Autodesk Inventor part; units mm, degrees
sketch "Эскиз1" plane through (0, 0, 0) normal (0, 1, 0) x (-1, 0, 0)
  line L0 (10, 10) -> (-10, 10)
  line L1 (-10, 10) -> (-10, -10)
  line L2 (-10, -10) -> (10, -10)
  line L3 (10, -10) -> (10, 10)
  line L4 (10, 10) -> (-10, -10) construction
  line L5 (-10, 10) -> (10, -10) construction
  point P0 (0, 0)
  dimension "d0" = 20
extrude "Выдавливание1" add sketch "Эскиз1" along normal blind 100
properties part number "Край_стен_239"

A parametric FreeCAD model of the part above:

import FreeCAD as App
import Part
import Sketcher
Q = App.Units.Quantity

doc = App.newDocument("Part")
body = doc.addObject("PartDesign::Body", "Body")

sketch1 = body.newObject("Sketcher::SketchObject", "Sketch")
sketch1.AttachmentSupport = (doc.getObject("XZ_Plane"), [""])
sketch1.MapMode = "FlatFace"
sketch1.addGeometry(Part.LineSegment(App.Vector(-10, -10, 0), App.Vector(-10, 10, 0)), False)
sketch1.addGeometry(Part.LineSegment(App.Vector(-10, 10, 0), App.Vector(10, 10, 0)), False)
sketch1.addGeometry(Part.LineSegment(App.Vector(10, 10, 0), App.Vector(10, -10, 0)), False)
sketch1.addGeometry(Part.LineSegment(App.Vector(10, -10, 0), App.Vector(-10, -10, 0)), False)
sketch1.addConstraint(Sketcher.Constraint("Coincident", 0, 2, 1, 1))
sketch1.addConstraint(Sketcher.Constraint("Coincident", 1, 2, 2, 1))
sketch1.addConstraint(Sketcher.Constraint("Coincident", 2, 2, 3, 1))
sketch1.addConstraint(Sketcher.Constraint("Coincident", 3, 2, 0, 1))
sketch1.addConstraint(Sketcher.Constraint("Vertical", 0))
sketch1.addConstraint(Sketcher.Constraint("Horizontal", 1))
sketch1.addConstraint(Sketcher.Constraint("Vertical", 2))
sketch1.addConstraint(Sketcher.Constraint("Horizontal", 3))
sketch1.addConstraint(Sketcher.Constraint("Symmetric", 0, 2, 2, 2, -1, 1))
sketch1.addConstraint(Sketcher.Constraint("Equal", 3, 0))
sketch1.addConstraint(Sketcher.Constraint("DistanceX", 1, 1, 1, 2, Q("0.7874 in")))
pad1 = body.newObject("PartDesign::Pad", "Pad")
pad1.Profile = sketch1
pad1.Length = Q("3.9370079 in")
pad1.Reversed = True

doc.recompute()
